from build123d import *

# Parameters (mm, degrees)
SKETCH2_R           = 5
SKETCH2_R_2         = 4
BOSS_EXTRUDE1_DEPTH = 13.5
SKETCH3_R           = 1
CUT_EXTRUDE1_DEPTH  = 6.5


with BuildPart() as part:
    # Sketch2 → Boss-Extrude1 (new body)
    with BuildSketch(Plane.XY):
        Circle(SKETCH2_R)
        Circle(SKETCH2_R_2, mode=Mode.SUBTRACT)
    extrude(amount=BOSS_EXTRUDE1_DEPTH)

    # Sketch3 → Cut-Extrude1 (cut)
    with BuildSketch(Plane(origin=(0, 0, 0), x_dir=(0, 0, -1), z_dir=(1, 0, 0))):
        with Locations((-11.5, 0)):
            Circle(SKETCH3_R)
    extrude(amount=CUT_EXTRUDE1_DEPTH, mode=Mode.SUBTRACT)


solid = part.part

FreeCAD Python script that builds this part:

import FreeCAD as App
import Part
import Sketcher
from FreeCAD import Vector
Q = App.Units.Quantity

doc = App.newDocument("Part")
body = doc.addObject("PartDesign::Body", "Body")

# Sketch on XY plane
sketch1 = body.newObject("Sketcher::SketchObject", "Sketch")
sketch1.AttachmentSupport = (doc.getObject("XY_Plane"), [""])
sketch1.MapMode = "FlatFace"
sketch1.addGeometry([
    Part.Circle(Vector(0, 0, 0), Vector(0, 0, 1), 5),
    Part.Circle(Vector(0, 0, 0), Vector(0, 0, 1), 4),
], False)
sketch1.addConstraint([
    Sketcher.Constraint("Coincident", 0, 3, -1, 1),
    Sketcher.Constraint("Coincident", 1, 3, -1, 1),
    Sketcher.Constraint("Diameter", 0, Q("10 mm")),
    Sketcher.Constraint("Diameter", 1, Q("8 mm")),
])
pad1 = body.newObject("PartDesign::Pad", "Pad")
pad1.Profile = sketch1
pad1.Length = 13.5

# Sketch on YZ plane
sketch2 = body.newObject("Sketcher::SketchObject", "Sketch001")
sketch2.AttachmentSupport = (doc.getObject("YZ_Plane"), [""])
sketch2.MapMode = "FlatFace"
sketch2.addGeometry(Part.Circle(Vector(0, 11.5, 0), Vector(0, 0, 1), 1), False)
sketch2.addConstraint([
    Sketcher.Constraint("PointOnObject", 0, 3, -2),
    Sketcher.Constraint("Diameter", 0, Q("2 mm")),
    Sketcher.Constraint("DistanceY", -1, 1, 0, 3, Q("11.5 mm")),
])
pocket1 = body.newObject("PartDesign::Pocket", "Pocket")
pocket1.Profile = sketch2
pocket1.Length = 6.5
pocket1.Reversed = True

doc.recompute()
